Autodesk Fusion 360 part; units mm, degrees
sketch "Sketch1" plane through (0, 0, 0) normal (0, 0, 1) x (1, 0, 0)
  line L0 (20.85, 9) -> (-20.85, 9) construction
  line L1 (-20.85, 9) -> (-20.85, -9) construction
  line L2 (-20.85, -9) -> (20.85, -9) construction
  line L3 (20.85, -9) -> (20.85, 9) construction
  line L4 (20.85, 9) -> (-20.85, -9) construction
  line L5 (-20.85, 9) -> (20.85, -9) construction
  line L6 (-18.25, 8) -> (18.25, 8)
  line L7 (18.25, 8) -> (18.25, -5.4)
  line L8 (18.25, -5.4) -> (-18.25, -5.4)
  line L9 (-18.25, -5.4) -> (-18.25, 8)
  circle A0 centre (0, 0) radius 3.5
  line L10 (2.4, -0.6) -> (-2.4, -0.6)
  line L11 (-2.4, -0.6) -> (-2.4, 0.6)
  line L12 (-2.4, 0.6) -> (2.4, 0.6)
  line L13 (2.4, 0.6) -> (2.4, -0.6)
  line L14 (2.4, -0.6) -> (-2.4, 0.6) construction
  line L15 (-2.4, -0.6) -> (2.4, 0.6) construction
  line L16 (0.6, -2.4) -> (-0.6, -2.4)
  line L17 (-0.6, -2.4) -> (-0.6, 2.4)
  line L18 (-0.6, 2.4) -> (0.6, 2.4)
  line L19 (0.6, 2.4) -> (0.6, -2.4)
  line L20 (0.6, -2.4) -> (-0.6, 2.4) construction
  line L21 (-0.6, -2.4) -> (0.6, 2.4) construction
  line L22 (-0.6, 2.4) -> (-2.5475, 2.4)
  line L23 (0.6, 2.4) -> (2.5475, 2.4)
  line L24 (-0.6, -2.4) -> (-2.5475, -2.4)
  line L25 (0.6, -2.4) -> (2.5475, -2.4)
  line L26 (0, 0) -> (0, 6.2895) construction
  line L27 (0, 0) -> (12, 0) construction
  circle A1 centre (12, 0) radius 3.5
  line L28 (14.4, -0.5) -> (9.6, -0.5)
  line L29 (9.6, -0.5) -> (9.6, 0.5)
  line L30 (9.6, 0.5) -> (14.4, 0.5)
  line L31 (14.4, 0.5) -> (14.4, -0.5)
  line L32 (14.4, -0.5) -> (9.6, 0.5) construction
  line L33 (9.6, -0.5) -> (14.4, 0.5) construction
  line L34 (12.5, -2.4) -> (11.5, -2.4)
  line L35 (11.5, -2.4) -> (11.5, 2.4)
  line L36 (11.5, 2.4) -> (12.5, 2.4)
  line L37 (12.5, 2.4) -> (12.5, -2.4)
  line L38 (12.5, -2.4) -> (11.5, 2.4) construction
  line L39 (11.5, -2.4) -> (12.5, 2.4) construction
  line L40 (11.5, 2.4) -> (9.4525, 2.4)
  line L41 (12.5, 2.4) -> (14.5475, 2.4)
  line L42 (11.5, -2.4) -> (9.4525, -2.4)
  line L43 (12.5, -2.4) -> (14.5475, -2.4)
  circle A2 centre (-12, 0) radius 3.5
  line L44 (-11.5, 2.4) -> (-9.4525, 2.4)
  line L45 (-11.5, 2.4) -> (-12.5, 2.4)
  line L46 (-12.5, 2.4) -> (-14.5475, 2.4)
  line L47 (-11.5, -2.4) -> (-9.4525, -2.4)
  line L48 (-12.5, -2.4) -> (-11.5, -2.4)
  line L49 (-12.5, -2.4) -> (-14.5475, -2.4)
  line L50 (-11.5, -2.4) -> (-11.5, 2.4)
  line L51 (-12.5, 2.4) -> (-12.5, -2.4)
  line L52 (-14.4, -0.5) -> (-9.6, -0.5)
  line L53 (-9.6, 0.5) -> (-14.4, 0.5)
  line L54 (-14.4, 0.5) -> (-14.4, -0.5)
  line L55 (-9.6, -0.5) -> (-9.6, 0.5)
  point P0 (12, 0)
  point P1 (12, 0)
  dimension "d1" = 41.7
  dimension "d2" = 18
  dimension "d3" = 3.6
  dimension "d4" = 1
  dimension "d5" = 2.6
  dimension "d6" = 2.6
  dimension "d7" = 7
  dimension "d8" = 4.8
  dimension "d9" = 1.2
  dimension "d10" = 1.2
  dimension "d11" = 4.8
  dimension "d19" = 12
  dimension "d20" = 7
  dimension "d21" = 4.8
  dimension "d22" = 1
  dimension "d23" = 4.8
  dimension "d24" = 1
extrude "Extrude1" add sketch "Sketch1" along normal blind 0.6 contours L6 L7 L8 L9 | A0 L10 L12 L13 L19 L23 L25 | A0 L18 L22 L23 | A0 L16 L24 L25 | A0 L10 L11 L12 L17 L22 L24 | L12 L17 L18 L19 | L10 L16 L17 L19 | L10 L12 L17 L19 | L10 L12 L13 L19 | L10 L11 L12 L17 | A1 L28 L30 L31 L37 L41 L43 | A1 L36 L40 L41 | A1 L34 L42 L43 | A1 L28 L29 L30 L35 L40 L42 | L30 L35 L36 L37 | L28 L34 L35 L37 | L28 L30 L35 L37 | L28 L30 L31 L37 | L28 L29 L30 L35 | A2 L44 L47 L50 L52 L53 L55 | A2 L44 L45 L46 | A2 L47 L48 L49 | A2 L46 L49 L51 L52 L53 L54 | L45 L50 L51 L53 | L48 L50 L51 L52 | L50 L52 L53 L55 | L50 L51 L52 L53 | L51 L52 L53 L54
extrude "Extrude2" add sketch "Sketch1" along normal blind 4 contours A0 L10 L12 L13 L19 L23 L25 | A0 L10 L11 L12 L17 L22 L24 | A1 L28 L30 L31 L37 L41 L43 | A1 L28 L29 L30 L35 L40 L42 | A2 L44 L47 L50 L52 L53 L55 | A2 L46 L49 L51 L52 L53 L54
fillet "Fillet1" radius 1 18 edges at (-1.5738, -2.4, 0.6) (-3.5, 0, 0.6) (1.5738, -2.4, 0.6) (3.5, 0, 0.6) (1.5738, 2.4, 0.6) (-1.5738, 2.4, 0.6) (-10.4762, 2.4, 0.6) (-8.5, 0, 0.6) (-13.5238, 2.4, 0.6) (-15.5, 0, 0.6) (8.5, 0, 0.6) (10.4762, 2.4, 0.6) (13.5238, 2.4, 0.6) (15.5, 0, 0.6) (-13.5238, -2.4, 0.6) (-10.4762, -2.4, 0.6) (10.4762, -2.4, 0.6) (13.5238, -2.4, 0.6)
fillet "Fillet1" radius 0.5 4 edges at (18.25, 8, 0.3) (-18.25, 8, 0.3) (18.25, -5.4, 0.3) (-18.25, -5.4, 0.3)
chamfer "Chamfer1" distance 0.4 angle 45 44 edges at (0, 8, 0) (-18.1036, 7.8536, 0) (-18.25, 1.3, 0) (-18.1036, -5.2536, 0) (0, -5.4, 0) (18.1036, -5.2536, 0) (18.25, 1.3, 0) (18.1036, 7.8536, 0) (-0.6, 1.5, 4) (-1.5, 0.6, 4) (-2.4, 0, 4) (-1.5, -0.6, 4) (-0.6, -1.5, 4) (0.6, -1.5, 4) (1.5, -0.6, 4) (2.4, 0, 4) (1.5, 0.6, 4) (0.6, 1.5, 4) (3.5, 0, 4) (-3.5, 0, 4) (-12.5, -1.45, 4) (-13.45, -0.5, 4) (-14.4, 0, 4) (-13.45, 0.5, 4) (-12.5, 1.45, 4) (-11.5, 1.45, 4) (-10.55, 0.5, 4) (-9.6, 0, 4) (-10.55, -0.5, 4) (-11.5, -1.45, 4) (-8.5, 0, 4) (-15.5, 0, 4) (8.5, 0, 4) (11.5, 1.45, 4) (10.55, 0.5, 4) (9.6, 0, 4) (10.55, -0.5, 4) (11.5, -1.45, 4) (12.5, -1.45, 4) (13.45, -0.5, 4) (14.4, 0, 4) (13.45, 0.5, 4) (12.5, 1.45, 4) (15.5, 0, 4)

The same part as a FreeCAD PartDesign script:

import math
import FreeCAD as App
import Part
import Sketcher

V = App.Vector


def edges_at(feature, points):
    """Names of the edges that pass closest to the given points."""
    edges = feature.Shape.Edges
    near = lambda p: min(range(len(edges)), key=lambda i: edges[i].distToShape(Part.Vertex(*p))[0])
    return sorted({f"Edge{near(p) + 1}" for p in points})


def add_polygon(sketch, points):
    """Adds a closed chain of lines whose ends are joined by coincident constraints."""
    first, n = sketch.GeometryCount, len(points)
    for a, b in zip(points, points[1:] + points[:1]):
        sketch.addGeometry(Part.LineSegment(App.Vector(*a, 0), App.Vector(*b, 0)), False)
    for i in range(n):
        sketch.addConstraint(Sketcher.Constraint("Coincident", first + i, 2, first + (i + 1) % n, 1))

doc = App.newDocument("Part")
body = doc.addObject("PartDesign::Body", "Body")

sketch1 = body.newObject("Sketcher::SketchObject", "Sketch")
sketch1.AttachmentSupport = (doc.getObject("XY_Plane"), [""])
sketch1.MapMode = "FlatFace"
add_polygon(sketch1, [(18.25, 8), (-18.25, 8), (-18.25, -5.4), (18.25, -5.4)])
sketch1.addConstraint([
    Sketcher.Constraint("Horizontal", 0),
    Sketcher.Constraint("Vertical", 1),
    Sketcher.Constraint("Horizontal", 2),
    Sketcher.Constraint("Vertical", 3),
    Sketcher.Constraint("DistanceX", 0, 2, 0, 1, 36.5),
    Sketcher.Constraint("DistanceY", 1, 2, 1, 1, 13.4),
    Sketcher.Constraint("DistanceY", -1, 1, 0, 2, 8.0),
    Sketcher.Constraint("DistanceX", 0, 2, -1, 1, 18.25),
])
pad1 = body.newObject("PartDesign::Pad", "Pad")
pad1.Profile = sketch1
pad1.Length = 0.6

sketch2 = body.newObject("Sketcher::SketchObject", "Sketch001")
sketch2.AttachmentSupport = (doc.getObject("XY_Plane"), [""])
sketch2.MapMode = "FlatFace"
sketch2.addGeometry([
    Part.ArcOfCircle(Part.Circle(V(0, 0, 0), V(0, 0, 1), 3.5), math.radians(-43.292345), math.radians(43.292345)),
    Part.LineSegment(V(2.5475, 2.4, 0), V(0.6, 2.4, 0)),
    Part.LineSegment(V(0.6, 2.4, 0), V(0.6, 0.6, 0)),
    Part.LineSegment(V(0.6, 0.6, 0), V(2.4, 0.6, 0)),
    Part.LineSegment(V(2.4, 0.6, 0), V(2.4, -0.6, 0)),
    Part.LineSegment(V(2.4, -0.6, 0), V(0.6, -0.6, 0)),
    Part.LineSegment(V(0.6, -0.6, 0), V(0.6, -2.4, 0)),
    Part.LineSegment(V(0.6, -2.4, 0), V(2.5475, -2.4, 0)),
    Part.LineSegment(V(-0.6, 2.4, 0), V(-2.5475, 2.4, 0)),
    Part.ArcOfCircle(Part.Circle(V(0, 0, 0), V(0, 0, 1), 3.5), math.radians(136.707655), math.radians(223.292345)),
    Part.LineSegment(V(-2.5475, -2.4, 0), V(-0.6, -2.4, 0)),
    Part.LineSegment(V(-0.6, -2.4, 0), V(-0.6, -0.6, 0)),
    Part.LineSegment(V(-0.6, -0.6, 0), V(-2.4, -0.6, 0)),
    Part.LineSegment(V(-2.4, -0.6, 0), V(-2.4, 0.6, 0)),
    Part.LineSegment(V(-2.4, 0.6, 0), V(-0.6, 0.6, 0)),
    Part.LineSegment(V(-0.6, 0.6, 0), V(-0.6, 2.4, 0)),
    Part.ArcOfCircle(Part.Circle(V(12, 0, 0), V(0, 0, 1), 3.5), math.radians(-43.292345), math.radians(43.292345)),
    Part.LineSegment(V(14.5475, 2.4, 0), V(12.5, 2.4, 0)),
    Part.LineSegment(V(12.5, 2.4, 0), V(12.5, 0.5, 0)),
    Part.LineSegment(V(12.5, 0.5, 0), V(14.4, 0.5, 0)),
    Part.LineSegment(V(14.4, 0.5, 0), V(14.4, -0.5, 0)),
    Part.LineSegment(V(14.4, -0.5, 0), V(12.5, -0.5, 0)),
    Part.LineSegment(V(12.5, -0.5, 0), V(12.5, -2.4, 0)),
    Part.LineSegment(V(12.5, -2.4, 0), V(14.5475, -2.4, 0)),
    Part.LineSegment(V(11.5, 2.4, 0), V(9.4525, 2.4, 0)),
    Part.ArcOfCircle(Part.Circle(V(12, 0, 0), V(0, 0, 1), 3.5), math.radians(136.707655), math.radians(223.292345)),
    Part.LineSegment(V(9.4525, -2.4, 0), V(11.5, -2.4, 0)),
    Part.LineSegment(V(11.5, -2.4, 0), V(11.5, -0.5, 0)),
    Part.LineSegment(V(11.5, -0.5, 0), V(9.6, -0.5, 0)),
    Part.LineSegment(V(9.6, -0.5, 0), V(9.6, 0.5, 0)),
    Part.LineSegment(V(9.6, 0.5, 0), V(11.5, 0.5, 0)),
    Part.LineSegment(V(11.5, 0.5, 0), V(11.5, 2.4, 0)),
    Part.ArcOfCircle(Part.Circle(V(-12, 0, 0), V(0, 0, 1), 3.5), math.radians(-43.292345), math.radians(43.292345)),
    Part.LineSegment(V(-9.4525, 2.4, 0), V(-11.5, 2.4, 0)),
    Part.LineSegment(V(-11.5, 2.4, 0), V(-11.5, 0.5, 0)),
    Part.LineSegment(V(-11.5, 0.5, 0), V(-9.6, 0.5, 0)),
    Part.LineSegment(V(-9.6, 0.5, 0), V(-9.6, -0.5, 0)),
    Part.LineSegment(V(-9.6, -0.5, 0), V(-11.5, -0.5, 0)),
    Part.LineSegment(V(-11.5, -0.5, 0), V(-11.5, -2.4, 0)),
    Part.LineSegment(V(-11.5, -2.4, 0), V(-9.4525, -2.4, 0)),
    Part.LineSegment(V(-12.5, 2.4, 0), V(-14.5475, 2.4, 0)),
    Part.ArcOfCircle(Part.Circle(V(-12, 0, 0), V(0, 0, 1), 3.5), math.radians(136.707655), math.radians(223.292345)),
    Part.LineSegment(V(-14.5475, -2.4, 0), V(-12.5, -2.4, 0)),
    Part.LineSegment(V(-12.5, -2.4, 0), V(-12.5, -0.5, 0)),
    Part.LineSegment(V(-12.5, -0.5, 0), V(-14.4, -0.5, 0)),
    Part.LineSegment(V(-14.4, -0.5, 0), V(-14.4, 0.5, 0)),
    Part.LineSegment(V(-14.4, 0.5, 0), V(-12.5, 0.5, 0)),
    Part.LineSegment(V(-12.5, 0.5, 0), V(-12.5, 2.4, 0)),
], False)
sketch2.addConstraint([
    Sketcher.Constraint("Coincident", 0, 2, 1, 1),
    Sketcher.Constraint("Coincident", 1, 2, 2, 1),
    Sketcher.Constraint("Coincident", 2, 2, 3, 1),
    Sketcher.Constraint("Coincident", 3, 2, 4, 1),
    Sketcher.Constraint("Coincident", 4, 2, 5, 1),
    Sketcher.Constraint("Coincident", 5, 2, 6, 1),
    Sketcher.Constraint("Coincident", 6, 2, 7, 1),
    Sketcher.Constraint("Coincident", 7, 2, 0, 1),
    Sketcher.Constraint("Coincident", 8, 2, 9, 1),
    Sketcher.Constraint("Coincident", 9, 2, 10, 1),
    Sketcher.Constraint("Coincident", 10, 2, 11, 1),
    Sketcher.Constraint("Coincident", 11, 2, 12, 1),
    Sketcher.Constraint("Coincident", 12, 2, 13, 1),
    Sketcher.Constraint("Coincident", 13, 2, 14, 1),
    Sketcher.Constraint("Coincident", 14, 2, 15, 1),
    Sketcher.Constraint("Coincident", 15, 2, 8, 1),
    Sketcher.Constraint("Coincident", 16, 2, 17, 1),
    Sketcher.Constraint("Coincident", 17, 2, 18, 1),
    Sketcher.Constraint("Coincident", 18, 2, 19, 1),
    Sketcher.Constraint("Coincident", 19, 2, 20, 1),
    Sketcher.Constraint("Coincident", 20, 2, 21, 1),
    Sketcher.Constraint("Coincident", 21, 2, 22, 1),
    Sketcher.Constraint("Coincident", 22, 2, 23, 1),
    Sketcher.Constraint("Coincident", 23, 2, 16, 1),
    Sketcher.Constraint("Coincident", 24, 2, 25, 1),
    Sketcher.Constraint("Coincident", 25, 2, 26, 1),
    Sketcher.Constraint("Coincident", 26, 2, 27, 1),
    Sketcher.Constraint("Coincident", 27, 2, 28, 1),
    Sketcher.Constraint("Coincident", 28, 2, 29, 1),
    Sketcher.Constraint("Coincident", 29, 2, 30, 1),
    Sketcher.Constraint("Coincident", 30, 2, 31, 1),
    Sketcher.Constraint("Coincident", 31, 2, 24, 1),
    Sketcher.Constraint("Coincident", 32, 2, 33, 1),
    Sketcher.Constraint("Coincident", 33, 2, 34, 1),
    Sketcher.Constraint("Coincident", 34, 2, 35, 1),
    Sketcher.Constraint("Coincident", 35, 2, 36, 1),
    Sketcher.Constraint("Coincident", 36, 2, 37, 1),
    Sketcher.Constraint("Coincident", 37, 2, 38, 1),
    Sketcher.Constraint("Coincident", 38, 2, 39, 1),
    Sketcher.Constraint("Coincident", 39, 2, 32, 1),
    Sketcher.Constraint("Coincident", 40, 2, 41, 1),
    Sketcher.Constraint("Coincident", 41, 2, 42, 1),
    Sketcher.Constraint("Coincident", 42, 2, 43, 1),
    Sketcher.Constraint("Coincident", 43, 2, 44, 1),
    Sketcher.Constraint("Coincident", 44, 2, 45, 1),
    Sketcher.Constraint("Coincident", 45, 2, 46, 1),
    Sketcher.Constraint("Coincident", 46, 2, 47, 1),
    Sketcher.Constraint("Coincident", 47, 2, 40, 1),
    Sketcher.Constraint("Horizontal", 1),
    Sketcher.Constraint("Vertical", 2),
    Sketcher.Constraint("Horizontal", 3),
    Sketcher.Constraint("Vertical", 4),
    Sketcher.Constraint("Horizontal", 5),
    Sketcher.Constraint("Vertical", 6),
    Sketcher.Constraint("Horizontal", 7),
    Sketcher.Constraint("Horizontal", 8),
    Sketcher.Constraint("Horizontal", 10),
    Sketcher.Constraint("Vertical", 11),
    Sketcher.Constraint("Horizontal", 12),
    Sketcher.Constraint("Vertical", 13),
    Sketcher.Constraint("Horizontal", 14),
    Sketcher.Constraint("Vertical", 15),
    Sketcher.Constraint("Horizontal", 17),
    Sketcher.Constraint("Vertical", 18),
    Sketcher.Constraint("Horizontal", 19),
    Sketcher.Constraint("Vertical", 20),
    Sketcher.Constraint("Horizontal", 21),
    Sketcher.Constraint("Vertical", 22),
    Sketcher.Constraint("Horizontal", 23),
    Sketcher.Constraint("Horizontal", 24),
    Sketcher.Constraint("Horizontal", 26),
    Sketcher.Constraint("Vertical", 27),
    Sketcher.Constraint("Horizontal", 28),
    Sketcher.Constraint("Vertical", 29),
    Sketcher.Constraint("Horizontal", 30),
    Sketcher.Constraint("Vertical", 31),
    Sketcher.Constraint("Horizontal", 33),
    Sketcher.Constraint("Vertical", 34),
    Sketcher.Constraint("Horizontal", 35),
    Sketcher.Constraint("Vertical", 36),
    Sketcher.Constraint("Horizontal", 37),
    Sketcher.Constraint("Vertical", 38),
    Sketcher.Constraint("Horizontal", 39),
    Sketcher.Constraint("Horizontal", 40),
    Sketcher.Constraint("Horizontal", 42),
    Sketcher.Constraint("Vertical", 43),
    Sketcher.Constraint("Horizontal", 44),
    Sketcher.Constraint("Vertical", 45),
    Sketcher.Constraint("Horizontal", 46),
    Sketcher.Constraint("Vertical", 47),
    Sketcher.Constraint("Coincident", 0, 3, -1, 1),
    Sketcher.Constraint("Coincident", 9, 3, -1, 1),
    Sketcher.Constraint("Coincident", 25, 3, 16, 3),
    Sketcher.Constraint("Coincident", 41, 3, 32, 3),
    Sketcher.Constraint("Equal", 0, 9),
    Sketcher.Constraint("Equal", 9, 16),
    Sketcher.Constraint("Equal", 16, 25),
    Sketcher.Constraint("Equal", 25, 32),
    Sketcher.Constraint("Equal", 32, 41),
    Sketcher.Constraint("Symmetric", 16, 3, 32, 3, -1, 1),
    Sketcher.Constraint("Symmetric", 1, 2, 10, 2, -1, 1),
    Sketcher.Constraint("Symmetric", 3, 2, 12, 2, -1, 1),
    Sketcher.Constraint("Symmetric", 5, 2, 14, 2, -1, 1),
    Sketcher.Constraint("Symmetric", 26, 2, 33, 2, -1, 1),
    Sketcher.Constraint("Symmetric", 28, 2, 35, 2, -1, 1),
    Sketcher.Constraint("Symmetric", 30, 2, 37, 2, -1, 1),
    Sketcher.Constraint("Symmetric", 17, 2, 42, 2, -1, 1),
    Sketcher.Constraint("Symmetric", 19, 2, 44, 2, -1, 1),
    Sketcher.Constraint("Symmetric", 21, 2, 46, 2, -1, 1),
    Sketcher.Constraint("Symmetric", 6, 2, 10, 2, -2),
    Sketcher.Constraint("Symmetric", 24, 2, 32, 2, -2),
    Sketcher.Constraint("Symmetric", 30, 2, 34, 2, -2),
    Sketcher.Constraint("Symmetric", 22, 2, 42, 2, -2),
    Sketcher.Constraint("Horizontal", 1, 2, 8, 2),
    Sketcher.Constraint("Horizontal", 5, 2, 11, 2),
    Sketcher.Constraint("Horizontal", 15, 2, 16, 2),
    Sketcher.Constraint("Horizontal", 17, 2, 24, 2),
    Sketcher.Constraint("Horizontal", 21, 2, 27, 2),
    Sketcher.Constraint("Horizontal", 19, 2, 29, 2),
    Sketcher.Constraint("Horizontal", 26, 2, 38, 2),
    Sketcher.Constraint("Horizontal", 33, 2, 40, 2),
    Sketcher.Constraint("Equal", 23, 24),
    Sketcher.Constraint("Equal", 21, 28),
    Sketcher.Constraint("Equal", 14, 2),
    Sketcher.Constraint("Equal", 46, 18),
    Sketcher.Constraint("Radius", 0, 3.5),
    Sketcher.Constraint("DistanceY", 20, 2, 20, 1, 1.0),
    Sketcher.Constraint("DistanceY", 4, 2, 4, 1, 1.2),
    Sketcher.Constraint("DistanceX", -1, 1, 16, 3, 12.0),
    Sketcher.Constraint("DistanceX", 26, 2, 22, 2, 1.0),
    Sketcher.Constraint("DistanceX", 10, 2, 6, 2, 1.2),
    Sketcher.Constraint("DistanceX", 3, 1, 3, 2, 1.8),
])
pad2 = body.newObject("PartDesign::Pad", "Pad001")
pad2.Profile = sketch2
pad2.Length = 4
doc.recompute()

fillet = body.newObject("PartDesign::Fillet", "Fillet")
fillet.Base = (pad2, edges_at(pad2, [
    (-1.574, -2.4, 0.6),
    (-3.5, 0, 0.6),
    (1.574, -2.4, 0.6),
    (3.5, 0, 0.6),
    (1.574, 2.4, 0.6),
    (-1.574, 2.4, 0.6),
    (-10.476, 2.4, 0.6),
    (-8.5, 0, 0.6),
    (-13.524, 2.4, 0.6),
    (-15.5, 0, 0.6),
    (8.5, 0, 0.6),
    (10.476, 2.4, 0.6),
    (13.524, 2.4, 0.6),
    (15.5, 0, 0.6),
    (-13.524, -2.4, 0.6),
    (-10.476, -2.4, 0.6),
    (10.476, -2.4, 0.6),
    (13.524, -2.4, 0.6),
]))
fillet.Radius = 1
doc.recompute()

fillet2 = body.newObject("PartDesign::Fillet", "Fillet001")
fillet2.Base = (fillet, edges_at(fillet, [
    (18.25, 8, 0.3),
    (-18.25, 8, 0.3),
    (18.25, -5.4, 0.3),
    (-18.25, -5.4, 0.3),
]))
fillet2.Radius = 0.5
doc.recompute()

chamfer = body.newObject("PartDesign::Chamfer", "Chamfer")
chamfer.Base = (fillet2, edges_at(fillet2, [
    (0, 8, 0),
    (-18.104, 7.854, 0),
    (-18.25, 1.3, 0),
    (-18.104, -5.254, 0),
    (0, -5.4, 0),
    (18.104, -5.254, 0),
    (18.25, 1.3, 0),
    (18.104, 7.854, 0),
    (-0.6, 1.5, 4),
    (-1.5, 0.6, 4),
    (-2.4, 0, 4),
    (-1.5, -0.6, 4),
    (-0.6, -1.5, 4),
    (0.6, -1.5, 4),
    (1.5, -0.6, 4),
    (2.4, 0, 4),
    (1.5, 0.6, 4),
    (0.6, 1.5, 4),
    (3.5, 0, 4),
    (-3.5, 0, 4),
    (-12.5, -1.45, 4),
    (-13.45, -0.5, 4),
    (-14.4, 0, 4),
    (-13.45, 0.5, 4),
    (-12.5, 1.45, 4),
    (-11.5, 1.45, 4),
    (-10.55, 0.5, 4),
    (-9.6, 0, 4),
    (-10.55, -0.5, 4),
    (-11.5, -1.45, 4),
    (-8.5, 0, 4),
    (-15.5, 0, 4),
    (8.5, 0, 4),
    (11.5, 1.45, 4),
    (10.55, 0.5, 4),
    (9.6, 0, 4),
    (10.55, -0.5, 4),
    (11.5, -1.45, 4),
    (12.5, -1.45, 4),
    (13.45, -0.5, 4),
    (14.4, 0, 4),
    (13.45, 0.5, 4),
    (12.5, 1.45, 4),
    (15.5, 0, 4),
]))
chamfer.Size = 0.4

doc.recompute()
